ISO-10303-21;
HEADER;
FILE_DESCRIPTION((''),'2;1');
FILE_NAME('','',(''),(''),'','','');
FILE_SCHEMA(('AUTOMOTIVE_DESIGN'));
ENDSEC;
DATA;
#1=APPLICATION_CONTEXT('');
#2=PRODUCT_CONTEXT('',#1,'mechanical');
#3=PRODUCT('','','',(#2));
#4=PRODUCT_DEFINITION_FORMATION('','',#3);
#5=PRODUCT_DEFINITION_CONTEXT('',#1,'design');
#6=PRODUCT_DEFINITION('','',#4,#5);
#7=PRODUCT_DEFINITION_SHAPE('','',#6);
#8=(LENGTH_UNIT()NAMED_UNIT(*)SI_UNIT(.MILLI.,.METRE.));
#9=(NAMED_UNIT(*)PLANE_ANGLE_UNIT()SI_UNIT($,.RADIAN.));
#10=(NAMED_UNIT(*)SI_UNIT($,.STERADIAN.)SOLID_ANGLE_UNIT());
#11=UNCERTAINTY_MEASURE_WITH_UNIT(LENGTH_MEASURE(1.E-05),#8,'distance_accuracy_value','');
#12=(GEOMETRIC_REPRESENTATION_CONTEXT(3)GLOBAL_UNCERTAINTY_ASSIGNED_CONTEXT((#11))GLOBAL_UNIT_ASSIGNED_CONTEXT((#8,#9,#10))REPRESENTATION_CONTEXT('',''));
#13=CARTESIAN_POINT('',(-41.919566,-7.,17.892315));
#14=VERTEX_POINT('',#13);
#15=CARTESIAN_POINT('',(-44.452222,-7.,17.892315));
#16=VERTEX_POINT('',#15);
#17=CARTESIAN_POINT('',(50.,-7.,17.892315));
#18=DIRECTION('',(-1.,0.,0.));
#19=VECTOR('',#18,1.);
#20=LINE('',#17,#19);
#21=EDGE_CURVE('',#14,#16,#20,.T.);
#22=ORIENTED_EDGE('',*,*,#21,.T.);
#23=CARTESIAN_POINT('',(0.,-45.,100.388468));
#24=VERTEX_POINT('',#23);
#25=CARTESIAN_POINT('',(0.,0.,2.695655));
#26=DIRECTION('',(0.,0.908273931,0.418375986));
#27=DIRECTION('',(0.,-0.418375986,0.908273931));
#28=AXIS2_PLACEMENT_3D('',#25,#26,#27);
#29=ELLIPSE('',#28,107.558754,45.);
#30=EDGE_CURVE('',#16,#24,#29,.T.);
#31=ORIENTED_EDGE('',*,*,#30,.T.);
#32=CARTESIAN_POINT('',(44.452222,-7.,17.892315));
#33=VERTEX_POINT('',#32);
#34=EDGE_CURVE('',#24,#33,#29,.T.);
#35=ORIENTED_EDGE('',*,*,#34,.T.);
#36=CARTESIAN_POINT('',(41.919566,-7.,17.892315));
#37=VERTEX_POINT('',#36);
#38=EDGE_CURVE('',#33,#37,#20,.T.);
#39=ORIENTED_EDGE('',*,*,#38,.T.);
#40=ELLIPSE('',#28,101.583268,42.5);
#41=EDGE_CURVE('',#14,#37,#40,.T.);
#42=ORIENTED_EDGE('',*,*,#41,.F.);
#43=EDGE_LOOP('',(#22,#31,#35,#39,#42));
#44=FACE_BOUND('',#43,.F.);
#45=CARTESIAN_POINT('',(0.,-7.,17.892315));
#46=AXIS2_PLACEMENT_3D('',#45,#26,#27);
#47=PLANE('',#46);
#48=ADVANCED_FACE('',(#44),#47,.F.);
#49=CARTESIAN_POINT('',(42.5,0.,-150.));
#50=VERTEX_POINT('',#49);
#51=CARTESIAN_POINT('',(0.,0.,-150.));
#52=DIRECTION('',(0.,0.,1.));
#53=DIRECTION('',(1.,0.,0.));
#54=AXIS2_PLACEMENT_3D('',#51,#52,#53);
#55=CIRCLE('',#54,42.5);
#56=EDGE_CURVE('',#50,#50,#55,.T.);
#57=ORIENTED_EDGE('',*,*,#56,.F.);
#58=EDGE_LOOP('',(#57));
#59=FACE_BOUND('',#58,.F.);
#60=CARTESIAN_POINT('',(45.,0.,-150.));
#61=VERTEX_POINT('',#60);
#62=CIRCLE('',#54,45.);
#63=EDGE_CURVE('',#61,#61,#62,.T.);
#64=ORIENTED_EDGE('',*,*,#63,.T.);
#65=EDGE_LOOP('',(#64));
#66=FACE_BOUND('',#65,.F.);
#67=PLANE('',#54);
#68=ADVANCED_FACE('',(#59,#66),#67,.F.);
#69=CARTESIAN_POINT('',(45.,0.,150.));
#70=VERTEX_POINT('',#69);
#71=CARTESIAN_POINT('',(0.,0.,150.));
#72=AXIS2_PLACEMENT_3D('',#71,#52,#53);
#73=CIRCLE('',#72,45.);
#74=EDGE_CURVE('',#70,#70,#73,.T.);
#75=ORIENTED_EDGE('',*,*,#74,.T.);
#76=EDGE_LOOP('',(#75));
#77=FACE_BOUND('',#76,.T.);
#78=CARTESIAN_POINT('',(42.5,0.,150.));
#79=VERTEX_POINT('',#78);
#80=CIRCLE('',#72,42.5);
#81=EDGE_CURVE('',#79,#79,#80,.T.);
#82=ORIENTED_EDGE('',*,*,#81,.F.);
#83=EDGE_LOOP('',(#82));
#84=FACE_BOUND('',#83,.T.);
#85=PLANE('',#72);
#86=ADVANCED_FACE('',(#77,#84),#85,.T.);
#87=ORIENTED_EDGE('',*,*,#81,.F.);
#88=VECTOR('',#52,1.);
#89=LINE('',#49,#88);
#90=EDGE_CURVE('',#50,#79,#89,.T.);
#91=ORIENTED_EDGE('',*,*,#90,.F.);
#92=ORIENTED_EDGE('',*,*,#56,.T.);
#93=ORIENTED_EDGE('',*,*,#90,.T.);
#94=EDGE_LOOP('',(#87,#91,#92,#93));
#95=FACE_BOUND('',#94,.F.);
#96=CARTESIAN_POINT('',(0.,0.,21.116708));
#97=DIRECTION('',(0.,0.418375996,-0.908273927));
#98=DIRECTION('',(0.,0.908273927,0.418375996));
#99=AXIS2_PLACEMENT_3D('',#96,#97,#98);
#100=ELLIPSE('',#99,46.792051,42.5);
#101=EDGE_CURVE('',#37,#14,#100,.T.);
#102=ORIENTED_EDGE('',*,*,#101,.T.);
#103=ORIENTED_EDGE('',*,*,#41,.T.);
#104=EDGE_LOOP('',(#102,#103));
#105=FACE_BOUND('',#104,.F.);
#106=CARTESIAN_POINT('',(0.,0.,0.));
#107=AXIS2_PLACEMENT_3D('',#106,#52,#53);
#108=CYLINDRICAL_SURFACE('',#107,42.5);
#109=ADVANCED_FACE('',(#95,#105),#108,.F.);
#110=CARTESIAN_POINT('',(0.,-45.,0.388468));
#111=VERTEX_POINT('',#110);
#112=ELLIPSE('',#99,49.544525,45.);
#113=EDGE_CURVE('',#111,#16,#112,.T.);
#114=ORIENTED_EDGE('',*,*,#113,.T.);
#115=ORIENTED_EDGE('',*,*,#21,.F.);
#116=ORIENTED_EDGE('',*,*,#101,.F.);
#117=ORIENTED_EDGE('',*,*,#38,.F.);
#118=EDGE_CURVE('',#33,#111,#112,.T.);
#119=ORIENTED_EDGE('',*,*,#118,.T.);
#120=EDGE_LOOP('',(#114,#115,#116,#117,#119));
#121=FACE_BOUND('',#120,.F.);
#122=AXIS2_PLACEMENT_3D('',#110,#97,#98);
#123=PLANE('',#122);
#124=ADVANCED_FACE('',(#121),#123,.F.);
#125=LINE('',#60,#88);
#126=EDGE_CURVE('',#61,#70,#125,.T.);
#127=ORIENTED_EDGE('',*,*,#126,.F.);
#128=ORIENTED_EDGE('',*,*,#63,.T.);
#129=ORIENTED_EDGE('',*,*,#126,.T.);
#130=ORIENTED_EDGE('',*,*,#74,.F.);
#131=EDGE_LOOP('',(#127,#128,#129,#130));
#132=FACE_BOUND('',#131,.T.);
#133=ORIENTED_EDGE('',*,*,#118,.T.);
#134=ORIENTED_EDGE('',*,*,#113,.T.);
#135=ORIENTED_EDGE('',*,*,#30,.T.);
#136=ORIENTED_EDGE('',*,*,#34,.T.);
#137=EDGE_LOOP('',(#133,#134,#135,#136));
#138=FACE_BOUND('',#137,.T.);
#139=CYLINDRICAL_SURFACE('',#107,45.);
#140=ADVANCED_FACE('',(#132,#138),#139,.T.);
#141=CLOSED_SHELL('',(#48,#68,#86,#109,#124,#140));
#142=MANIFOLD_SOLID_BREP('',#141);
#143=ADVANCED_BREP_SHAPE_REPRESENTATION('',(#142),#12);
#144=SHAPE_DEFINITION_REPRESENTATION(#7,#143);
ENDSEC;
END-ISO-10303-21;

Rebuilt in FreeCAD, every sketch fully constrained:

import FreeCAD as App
import Part
import Sketcher
from FreeCAD import Vector
Q = App.Units.Quantity


def faces_at(feature, points):
    """Names of the faces that lie closest to the given points."""
    faces = feature.Shape.Faces
    near = lambda p: min(range(len(faces)), key=lambda i: faces[i].distToShape(Part.Vertex(*p))[0])
    return sorted({f"Face{near(p) + 1}" for p in points})

doc = App.newDocument("Part")
body = doc.addObject("PartDesign::Body", "Body")

sketch1 = body.newObject("Sketcher::SketchObject", "Sketch")
sketch1.AttachmentSupport = (doc.getObject("XY_Plane"), [""])
sketch1.MapMode = "FlatFace"
sketch1.addGeometry(Part.Circle(Vector(0, 0, 0), Vector(0, 0, 1), 45), False)
sketch1.addConstraint([
    Sketcher.Constraint("Coincident", 0, 3, -1, 1),
    Sketcher.Constraint("Diameter", 0, Q("90 mm")),
])
pad1 = body.newObject("PartDesign::Pad", "Pad")
pad1.Profile = sketch1
pad1.Length = 300
pad1.Midplane = True
doc.recompute()

thickness = body.newObject("PartDesign::Thickness", "Thickness")
thickness.Base = (pad1, faces_at(pad1, [(0, 0, 150), (0, 0, -150)]))
thickness.Value = 2.5
thickness.Reversed = True
thickness.Join = "Arc"

sketch2 = body.newObject("Sketcher::SketchObject", "Sketch001")
sketch2.AttachmentSupport = (doc.getObject("YZ_Plane"), [""])
sketch2.MapMode = "FlatFace"
sketch2.addGeometry([
    Part.LineSegment(Vector(-45, 100, 0), Vector(-45, 0, 0)),
    Part.LineSegment(Vector(-45, 0, 0), Vector(-7, 18, 0)),
    Part.LineSegment(Vector(-7, 18, 0), Vector(-45, 100, 0)),
], False)
sketch2.addConstraint([
    Sketcher.Constraint("Coincident", 0, 2, 1, 1),
    Sketcher.Constraint("Coincident", 1, 2, 2, 1),
    Sketcher.Constraint("Coincident", 2, 2, 0, 1),
    Sketcher.Constraint("Vertical", 0),
    Sketcher.Constraint("Perpendicular", 1, 2),
    Sketcher.Constraint("DistanceY", 0, 2, 0, 1, Q("100 mm")),
    Sketcher.Constraint("DistanceX", 0, 2, -1, 1, Q("45 mm")),
    Sketcher.Constraint("DistanceX", 1, 2, -1, 1, Q("7 mm")),
    Sketcher.Constraint("DistanceY", -1, 1, 2, 2, Q("100.388468 mm")),
])
pocket1 = body.newObject("PartDesign::Pocket", "Pocket")
pocket1.Profile = sketch2
pocket1.Length = 100
pocket1.Midplane = True

doc.recompute()
